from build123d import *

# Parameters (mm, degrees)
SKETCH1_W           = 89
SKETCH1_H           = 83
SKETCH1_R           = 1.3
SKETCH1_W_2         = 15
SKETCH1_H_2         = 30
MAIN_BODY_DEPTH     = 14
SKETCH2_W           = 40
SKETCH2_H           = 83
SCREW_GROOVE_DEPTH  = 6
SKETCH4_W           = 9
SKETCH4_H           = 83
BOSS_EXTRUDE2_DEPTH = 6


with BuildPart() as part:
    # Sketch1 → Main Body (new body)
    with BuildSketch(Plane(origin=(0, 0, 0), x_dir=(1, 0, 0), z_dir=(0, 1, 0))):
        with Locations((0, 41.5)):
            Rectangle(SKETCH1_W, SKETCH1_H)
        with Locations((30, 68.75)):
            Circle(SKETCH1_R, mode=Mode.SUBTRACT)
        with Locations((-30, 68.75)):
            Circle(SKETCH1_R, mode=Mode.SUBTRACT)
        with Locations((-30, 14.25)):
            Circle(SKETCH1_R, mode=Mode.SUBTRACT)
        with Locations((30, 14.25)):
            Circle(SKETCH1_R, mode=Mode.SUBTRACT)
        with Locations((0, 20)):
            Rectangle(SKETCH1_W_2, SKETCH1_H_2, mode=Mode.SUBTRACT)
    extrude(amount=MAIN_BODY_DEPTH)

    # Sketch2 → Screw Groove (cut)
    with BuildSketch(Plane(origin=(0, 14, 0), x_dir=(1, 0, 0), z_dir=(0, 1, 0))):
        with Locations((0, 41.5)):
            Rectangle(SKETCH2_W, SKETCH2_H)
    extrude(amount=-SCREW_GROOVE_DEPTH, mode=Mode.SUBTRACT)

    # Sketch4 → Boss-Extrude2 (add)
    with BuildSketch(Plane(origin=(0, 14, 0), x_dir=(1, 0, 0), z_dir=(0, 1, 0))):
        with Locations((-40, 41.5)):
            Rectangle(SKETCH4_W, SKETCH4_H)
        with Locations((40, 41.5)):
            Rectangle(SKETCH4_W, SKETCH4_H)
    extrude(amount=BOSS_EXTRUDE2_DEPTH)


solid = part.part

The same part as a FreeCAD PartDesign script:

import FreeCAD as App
import Part
import Sketcher


def add_polygon(sketch, points):
    """Adds a closed chain of lines whose ends are joined by coincident constraints."""
    first, n = sketch.GeometryCount, len(points)
    for a, b in zip(points, points[1:] + points[:1]):
        sketch.addGeometry(Part.LineSegment(App.Vector(*a, 0), App.Vector(*b, 0)), False)
    for i in range(n):
        sketch.addConstraint(Sketcher.Constraint("Coincident", first + i, 2, first + (i + 1) % n, 1))

doc = App.newDocument("Part")
body = doc.addObject("PartDesign::Body", "Body")

# Sketch on XZ plane
sketch1 = doc.addObject("Sketcher::SketchObject", "Sketch")
body.addObject(sketch1)
sketch1.AttachmentSupport = (doc.XZ_Plane, [""])
sketch1.MapMode = "FlatFace"
add_polygon(sketch1, [(-44.5, -83), (-44.5, 0), (44.5, 0), (44.5, -83)])  # lines 0-3
sketch1.addGeometry(Part.Circle(App.Vector(-30, -14.2, 0), App.Vector(0, 0, 1), 1.3), False)  # 4
add_polygon(sketch1, [(7.5, -5), (-7.5, -5), (-7.5, -35), (7.5, -35)])  # lines 5-8
sketch1.addGeometry(Part.Circle(App.Vector(30, -14.2, 0), App.Vector(0, 0, 1), 1.3), False)  # 9
sketch1.addGeometry(Part.Circle(App.Vector(-30, -68.8, 0), App.Vector(0, 0, 1), 1.3), False)  # 10
sketch1.addGeometry(Part.Circle(App.Vector(30, -68.8, 0), App.Vector(0, 0, 1), 1.3), False)  # 11
sketch1.addConstraint(Sketcher.Constraint("Vertical", 0))
sketch1.addConstraint(Sketcher.Constraint("Horizontal", 1))
sketch1.addConstraint(Sketcher.Constraint("Vertical", 2))
sketch1.addConstraint(Sketcher.Constraint("Horizontal", 3))
sketch1.addConstraint(Sketcher.Constraint("Horizontal", 5))
sketch1.addConstraint(Sketcher.Constraint("Vertical", 6))
sketch1.addConstraint(Sketcher.Constraint("Horizontal", 7))
sketch1.addConstraint(Sketcher.Constraint("Vertical", 8))
sketch1.addConstraint(Sketcher.Constraint("Equal", 4, 9))
sketch1.addConstraint(Sketcher.Constraint("Equal", 9, 10))
sketch1.addConstraint(Sketcher.Constraint("Equal", 10, 11))
sketch1.addConstraint(Sketcher.Constraint("Symmetric", 0, 2, 1, 2, -1, 1))
sketch1.addConstraint(Sketcher.Constraint("Symmetric", 4, 3, 9, 3, -2))
sketch1.addConstraint(Sketcher.Constraint("Symmetric", 10, 3, 11, 3, -2))
sketch1.addConstraint(Sketcher.Constraint("Vertical", 4, 3, 10, 3))
sketch1.addConstraint(Sketcher.Constraint("Diameter", 4, 2.6))
sketch1.addConstraint(Sketcher.Constraint("DistanceX", 1, 1, 1, 2, 89.0))
sketch1.addConstraint(Sketcher.Constraint("DistanceX", 5, 2, 5, 1, 15.0))
sketch1.addConstraint(Sketcher.Constraint("DistanceY", 0, 1, 0, 2, 83.0))
sketch1.addConstraint(Sketcher.Constraint("DistanceY", 6, 2, 6, 1, 30.0))
sketch1.addConstraint(Sketcher.Constraint("DistanceX", 4, 3, -1, 1, 30.0))
sketch1.addConstraint(Sketcher.Constraint("DistanceY", 5, 2, -1, 1, 5.0))
sketch1.addConstraint(Sketcher.Constraint("DistanceX", 0, 2, 5, 2, 37.0))
sketch1.addConstraint(Sketcher.Constraint("DistanceY", 10, 3, 4, 3, 54.5))
sketch1.addConstraint(Sketcher.Constraint("DistanceY", 4, 3, -1, 1, 14.25))
pad1 = doc.addObject("PartDesign::Pad", "Pad")
body.addObject(pad1)
pad1.Profile = sketch1
pad1.Length = 14
pad1.Reversed = True

# Sketch on XZ plane
sketch2 = doc.addObject("Sketcher::SketchObject", "Sketch001")
body.addObject(sketch2)
sketch2.AttachmentSupport = (doc.XZ_Plane, [""])
sketch2.MapMode = "FlatFace"
sketch2.AttachmentOffset = App.Placement(App.Vector(0, 0, -14), App.Rotation())
add_polygon(sketch2, [(-20, -83), (-20, 0), (20, 0), (20, -83)])  # lines 0-3
sketch2.addConstraint(Sketcher.Constraint("Vertical", 0))
sketch2.addConstraint(Sketcher.Constraint("Horizontal", 1))
sketch2.addConstraint(Sketcher.Constraint("Vertical", 2))
sketch2.addConstraint(Sketcher.Constraint("Horizontal", 3))
sketch2.addConstraint(Sketcher.Constraint("Symmetric", 0, 2, 1, 2, -1, 1))
sketch2.addConstraint(Sketcher.Constraint("DistanceX", 1, 1, 1, 2, 40.0))
sketch2.addConstraint(Sketcher.Constraint("DistanceY", 0, 1, 0, 2, 83.0))
pocket1 = doc.addObject("PartDesign::Pocket", "Pocket")
body.addObject(pocket1)
pocket1.Profile = sketch2
pocket1.Length = 6
pocket1.Reversed = True

# Sketch on XZ plane
sketch3 = doc.addObject("Sketcher::SketchObject", "Sketch002")
body.addObject(sketch3)
sketch3.AttachmentSupport = (doc.XZ_Plane, [""])
sketch3.MapMode = "FlatFace"
sketch3.AttachmentOffset = App.Placement(App.Vector(0, 0, -14), App.Rotation())
add_polygon(sketch3, [(-44, -83), (-44, 0), (-36, 0), (-36, -83)])  # lines 0-3
add_polygon(sketch3, [(36, -83), (36, 0), (44, 0), (44, -83)])  # lines 4-7
sketch3.addConstraint(Sketcher.Constraint("Vertical", 0))
sketch3.addConstraint(Sketcher.Constraint("Horizontal", 1))
sketch3.addConstraint(Sketcher.Constraint("Vertical", 2))
sketch3.addConstraint(Sketcher.Constraint("Horizontal", 3))
sketch3.addConstraint(Sketcher.Constraint("Vertical", 4))
sketch3.addConstraint(Sketcher.Constraint("Horizontal", 5))
sketch3.addConstraint(Sketcher.Constraint("Vertical", 6))
sketch3.addConstraint(Sketcher.Constraint("Horizontal", 7))
sketch3.addConstraint(Sketcher.Constraint("Symmetric", 1, 2, 4, 2, -1, 1))
sketch3.addConstraint(Sketcher.Constraint("Symmetric", 0, 2, 5, 2, -2))
sketch3.addConstraint(Sketcher.Constraint("Horizontal", 3, 2, 6, 2))
sketch3.addConstraint(Sketcher.Constraint("DistanceX", 1, 1, 1, 2, 9.0))
sketch3.addConstraint(Sketcher.Constraint("DistanceY", 0, 1, 0, 2, 83.0))
sketch3.addConstraint(Sketcher.Constraint("DistanceX", 1, 2, 4, 2, 71.0))
pad2 = doc.addObject("PartDesign::Pad", "Pad001")
body.addObject(pad2)
pad2.Profile = sketch3
pad2.Length = 6
pad2.Reversed = True

doc.recompute()
